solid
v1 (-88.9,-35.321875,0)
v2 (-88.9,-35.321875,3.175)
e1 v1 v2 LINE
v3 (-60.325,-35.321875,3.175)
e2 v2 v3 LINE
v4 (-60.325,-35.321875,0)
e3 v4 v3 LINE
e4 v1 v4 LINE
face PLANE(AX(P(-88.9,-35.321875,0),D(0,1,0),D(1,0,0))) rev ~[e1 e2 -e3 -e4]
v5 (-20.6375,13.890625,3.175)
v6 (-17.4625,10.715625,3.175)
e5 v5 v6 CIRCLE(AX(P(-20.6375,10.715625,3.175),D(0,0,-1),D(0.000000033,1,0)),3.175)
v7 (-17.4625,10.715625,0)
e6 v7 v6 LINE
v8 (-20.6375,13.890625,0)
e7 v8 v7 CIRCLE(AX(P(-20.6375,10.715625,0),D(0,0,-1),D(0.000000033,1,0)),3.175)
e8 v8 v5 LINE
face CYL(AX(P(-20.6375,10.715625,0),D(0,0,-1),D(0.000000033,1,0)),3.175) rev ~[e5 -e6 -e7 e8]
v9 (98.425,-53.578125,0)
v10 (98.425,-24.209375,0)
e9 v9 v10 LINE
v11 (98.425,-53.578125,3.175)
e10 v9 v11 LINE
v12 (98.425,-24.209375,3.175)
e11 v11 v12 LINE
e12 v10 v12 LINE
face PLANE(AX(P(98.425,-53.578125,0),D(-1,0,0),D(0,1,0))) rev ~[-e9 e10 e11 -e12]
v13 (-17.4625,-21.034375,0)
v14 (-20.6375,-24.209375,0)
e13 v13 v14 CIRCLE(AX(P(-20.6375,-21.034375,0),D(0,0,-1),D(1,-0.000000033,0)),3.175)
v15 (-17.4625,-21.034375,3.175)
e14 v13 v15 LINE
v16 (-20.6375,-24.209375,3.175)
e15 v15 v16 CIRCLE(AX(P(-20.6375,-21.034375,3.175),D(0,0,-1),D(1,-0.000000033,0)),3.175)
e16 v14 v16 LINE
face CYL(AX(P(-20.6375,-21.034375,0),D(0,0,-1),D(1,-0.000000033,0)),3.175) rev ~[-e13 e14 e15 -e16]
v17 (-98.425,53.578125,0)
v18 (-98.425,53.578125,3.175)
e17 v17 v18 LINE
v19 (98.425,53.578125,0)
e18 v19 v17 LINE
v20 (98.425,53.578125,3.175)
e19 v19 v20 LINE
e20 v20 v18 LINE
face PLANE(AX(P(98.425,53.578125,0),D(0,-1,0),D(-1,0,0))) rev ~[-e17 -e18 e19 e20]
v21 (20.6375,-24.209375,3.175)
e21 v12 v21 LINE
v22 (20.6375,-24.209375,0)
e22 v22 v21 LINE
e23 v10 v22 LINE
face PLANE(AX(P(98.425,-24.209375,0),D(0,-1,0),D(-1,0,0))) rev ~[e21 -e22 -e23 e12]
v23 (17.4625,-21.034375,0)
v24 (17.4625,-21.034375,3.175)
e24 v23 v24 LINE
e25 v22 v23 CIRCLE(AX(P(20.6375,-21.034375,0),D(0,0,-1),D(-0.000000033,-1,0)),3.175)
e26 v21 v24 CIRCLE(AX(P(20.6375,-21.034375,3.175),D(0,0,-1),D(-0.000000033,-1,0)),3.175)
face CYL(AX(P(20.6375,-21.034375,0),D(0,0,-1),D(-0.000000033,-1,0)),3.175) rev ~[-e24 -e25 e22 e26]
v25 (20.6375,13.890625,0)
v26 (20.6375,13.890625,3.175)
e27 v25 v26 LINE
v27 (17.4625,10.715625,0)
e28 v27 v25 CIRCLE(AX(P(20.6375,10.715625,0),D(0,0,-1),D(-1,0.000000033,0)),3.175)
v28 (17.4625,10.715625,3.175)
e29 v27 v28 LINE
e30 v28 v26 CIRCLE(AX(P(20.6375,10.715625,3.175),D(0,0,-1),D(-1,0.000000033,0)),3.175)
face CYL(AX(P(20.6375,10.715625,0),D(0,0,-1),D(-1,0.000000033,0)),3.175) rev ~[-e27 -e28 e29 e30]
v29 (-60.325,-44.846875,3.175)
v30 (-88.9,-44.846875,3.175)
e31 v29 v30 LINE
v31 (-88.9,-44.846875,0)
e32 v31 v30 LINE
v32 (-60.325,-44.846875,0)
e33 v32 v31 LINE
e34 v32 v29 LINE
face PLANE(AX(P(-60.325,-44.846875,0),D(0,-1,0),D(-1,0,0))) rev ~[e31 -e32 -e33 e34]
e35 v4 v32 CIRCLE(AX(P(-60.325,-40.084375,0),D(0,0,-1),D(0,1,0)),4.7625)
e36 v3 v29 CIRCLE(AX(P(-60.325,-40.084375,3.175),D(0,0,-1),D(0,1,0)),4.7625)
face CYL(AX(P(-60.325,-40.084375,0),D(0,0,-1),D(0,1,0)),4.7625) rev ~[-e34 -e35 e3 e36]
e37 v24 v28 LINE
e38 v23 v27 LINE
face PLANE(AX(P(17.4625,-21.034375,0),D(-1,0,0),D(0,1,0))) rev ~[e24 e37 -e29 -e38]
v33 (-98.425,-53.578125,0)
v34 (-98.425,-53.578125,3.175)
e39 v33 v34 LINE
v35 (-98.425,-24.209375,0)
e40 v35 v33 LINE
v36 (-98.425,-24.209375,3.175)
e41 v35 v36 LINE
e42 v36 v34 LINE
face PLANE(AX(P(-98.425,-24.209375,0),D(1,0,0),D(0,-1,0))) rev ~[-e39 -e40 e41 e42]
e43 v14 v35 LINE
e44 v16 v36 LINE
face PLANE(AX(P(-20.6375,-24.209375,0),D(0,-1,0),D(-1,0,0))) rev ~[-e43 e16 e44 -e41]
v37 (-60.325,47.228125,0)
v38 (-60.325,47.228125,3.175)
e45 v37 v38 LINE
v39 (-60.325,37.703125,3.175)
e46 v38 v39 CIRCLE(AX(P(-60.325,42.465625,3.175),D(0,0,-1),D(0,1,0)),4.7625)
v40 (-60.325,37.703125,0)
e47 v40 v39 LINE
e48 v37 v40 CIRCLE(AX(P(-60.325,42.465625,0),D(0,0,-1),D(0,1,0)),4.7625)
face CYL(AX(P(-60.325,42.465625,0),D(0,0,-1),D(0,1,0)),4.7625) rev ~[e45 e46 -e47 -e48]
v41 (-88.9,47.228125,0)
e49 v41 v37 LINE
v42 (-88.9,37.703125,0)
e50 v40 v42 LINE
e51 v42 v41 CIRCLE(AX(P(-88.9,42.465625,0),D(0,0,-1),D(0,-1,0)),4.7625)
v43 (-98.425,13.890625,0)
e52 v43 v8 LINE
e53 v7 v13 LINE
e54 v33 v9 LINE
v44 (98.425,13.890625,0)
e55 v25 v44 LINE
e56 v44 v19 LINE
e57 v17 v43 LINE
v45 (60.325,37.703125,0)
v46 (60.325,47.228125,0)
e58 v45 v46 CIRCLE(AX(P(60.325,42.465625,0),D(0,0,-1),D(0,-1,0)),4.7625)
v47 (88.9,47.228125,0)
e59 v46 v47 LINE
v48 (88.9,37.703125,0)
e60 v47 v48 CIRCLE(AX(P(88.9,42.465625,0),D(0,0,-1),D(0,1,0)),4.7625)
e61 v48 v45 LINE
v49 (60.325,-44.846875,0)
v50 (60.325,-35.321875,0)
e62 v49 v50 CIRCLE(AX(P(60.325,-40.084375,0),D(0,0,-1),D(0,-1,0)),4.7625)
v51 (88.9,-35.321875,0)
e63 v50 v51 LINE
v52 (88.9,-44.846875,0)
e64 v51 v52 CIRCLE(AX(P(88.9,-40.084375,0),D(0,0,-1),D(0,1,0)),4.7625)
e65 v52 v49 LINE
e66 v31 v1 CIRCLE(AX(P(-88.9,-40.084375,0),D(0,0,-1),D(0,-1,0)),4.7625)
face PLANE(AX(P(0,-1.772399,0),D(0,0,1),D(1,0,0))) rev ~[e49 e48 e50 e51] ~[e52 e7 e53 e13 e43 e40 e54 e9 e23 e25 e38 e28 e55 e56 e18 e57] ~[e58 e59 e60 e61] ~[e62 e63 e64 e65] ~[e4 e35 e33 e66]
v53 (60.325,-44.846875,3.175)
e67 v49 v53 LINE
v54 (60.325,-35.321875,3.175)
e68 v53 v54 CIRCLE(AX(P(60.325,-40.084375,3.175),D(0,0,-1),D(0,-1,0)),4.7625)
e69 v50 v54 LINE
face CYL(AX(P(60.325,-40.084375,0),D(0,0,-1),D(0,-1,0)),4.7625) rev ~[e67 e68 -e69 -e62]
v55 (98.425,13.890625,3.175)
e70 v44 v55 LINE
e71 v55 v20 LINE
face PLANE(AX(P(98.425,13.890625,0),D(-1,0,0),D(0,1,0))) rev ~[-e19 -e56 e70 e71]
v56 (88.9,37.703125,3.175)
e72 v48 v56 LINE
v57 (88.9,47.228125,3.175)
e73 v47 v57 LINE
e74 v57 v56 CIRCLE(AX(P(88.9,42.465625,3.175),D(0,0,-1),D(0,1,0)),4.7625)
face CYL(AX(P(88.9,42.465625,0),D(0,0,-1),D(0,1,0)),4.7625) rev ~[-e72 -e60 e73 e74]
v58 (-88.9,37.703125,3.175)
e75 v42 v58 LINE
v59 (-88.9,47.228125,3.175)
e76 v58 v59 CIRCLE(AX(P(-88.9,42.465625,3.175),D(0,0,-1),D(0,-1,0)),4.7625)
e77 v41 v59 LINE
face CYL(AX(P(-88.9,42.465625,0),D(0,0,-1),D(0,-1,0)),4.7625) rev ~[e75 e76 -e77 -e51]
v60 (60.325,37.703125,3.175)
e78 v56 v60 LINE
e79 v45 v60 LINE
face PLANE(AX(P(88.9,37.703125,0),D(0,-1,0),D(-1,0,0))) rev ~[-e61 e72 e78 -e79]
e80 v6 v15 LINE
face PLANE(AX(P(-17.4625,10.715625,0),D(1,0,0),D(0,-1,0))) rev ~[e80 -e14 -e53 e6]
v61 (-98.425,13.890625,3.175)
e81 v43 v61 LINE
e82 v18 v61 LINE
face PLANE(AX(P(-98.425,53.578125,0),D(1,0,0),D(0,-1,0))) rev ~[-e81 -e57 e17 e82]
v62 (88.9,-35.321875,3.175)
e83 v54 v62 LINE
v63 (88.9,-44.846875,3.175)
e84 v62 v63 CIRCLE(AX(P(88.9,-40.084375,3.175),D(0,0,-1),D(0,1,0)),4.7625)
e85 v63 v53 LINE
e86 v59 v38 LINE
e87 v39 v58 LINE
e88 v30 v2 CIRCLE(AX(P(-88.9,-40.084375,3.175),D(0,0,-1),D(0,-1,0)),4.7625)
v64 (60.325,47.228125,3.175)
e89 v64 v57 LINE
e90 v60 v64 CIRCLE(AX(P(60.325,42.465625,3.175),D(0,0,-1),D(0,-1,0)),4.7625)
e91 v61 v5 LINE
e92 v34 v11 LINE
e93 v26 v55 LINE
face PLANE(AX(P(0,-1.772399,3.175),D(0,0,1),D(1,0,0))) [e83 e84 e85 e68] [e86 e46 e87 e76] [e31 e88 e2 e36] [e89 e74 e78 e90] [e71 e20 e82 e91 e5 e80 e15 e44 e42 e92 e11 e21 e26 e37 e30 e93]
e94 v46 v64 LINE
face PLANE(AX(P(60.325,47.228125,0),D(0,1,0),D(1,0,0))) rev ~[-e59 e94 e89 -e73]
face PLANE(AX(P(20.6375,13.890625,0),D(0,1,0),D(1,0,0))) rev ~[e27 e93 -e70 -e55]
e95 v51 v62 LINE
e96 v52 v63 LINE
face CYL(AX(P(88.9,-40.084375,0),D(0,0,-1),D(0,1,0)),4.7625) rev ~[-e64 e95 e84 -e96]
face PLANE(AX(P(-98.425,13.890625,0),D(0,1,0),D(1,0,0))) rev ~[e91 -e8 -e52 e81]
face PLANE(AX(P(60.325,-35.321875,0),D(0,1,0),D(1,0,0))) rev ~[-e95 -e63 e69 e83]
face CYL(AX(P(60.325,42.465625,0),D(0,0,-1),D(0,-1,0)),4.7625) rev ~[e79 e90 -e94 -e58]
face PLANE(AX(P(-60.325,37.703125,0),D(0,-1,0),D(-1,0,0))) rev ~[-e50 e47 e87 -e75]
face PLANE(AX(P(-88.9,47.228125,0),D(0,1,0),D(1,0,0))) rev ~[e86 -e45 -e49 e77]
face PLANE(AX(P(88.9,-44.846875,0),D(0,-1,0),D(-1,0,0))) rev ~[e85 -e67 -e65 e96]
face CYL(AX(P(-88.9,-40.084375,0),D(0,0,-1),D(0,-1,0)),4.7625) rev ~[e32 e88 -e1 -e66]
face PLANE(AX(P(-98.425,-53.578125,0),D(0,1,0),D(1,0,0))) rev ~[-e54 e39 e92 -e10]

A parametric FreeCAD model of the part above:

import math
import FreeCAD as App
import Part
import Sketcher
Q = App.Units.Quantity

doc = App.newDocument("Part")
body = doc.addObject("PartDesign::Body", "Body")

sketch1 = body.newObject("Sketcher::SketchObject", "Sketch")
sketch1.AttachmentSupport = (doc.getObject("XY_Plane"), [""])
sketch1.MapMode = "FlatFace"
sketch1.addGeometry(Part.LineSegment(App.Vector(-98.425, -24.209375, 0), App.Vector(-98.425, -53.578125, 0)), False)
sketch1.addGeometry(Part.LineSegment(App.Vector(-98.425, -53.578125, 0), App.Vector(98.425, -53.578125, 0)), False)
sketch1.addGeometry(Part.LineSegment(App.Vector(98.425, -53.578125, 0), App.Vector(98.425, -24.209375, 0)), False)
sketch1.addGeometry(Part.LineSegment(App.Vector(98.425, -24.209375, 0), App.Vector(20.6375, -24.209375, 0)), False)
sketch1.addGeometry(Part.ArcOfCircle(Part.Circle(App.Vector(20.6375, -21.034375, 0), App.Vector(0, 0, 1), 3.175), math.radians(-179.999998), math.radians(-90.000002)), False)
sketch1.addGeometry(Part.LineSegment(App.Vector(17.4625, -21.034375, 0), App.Vector(17.4625, 10.715625, 0)), False)
sketch1.addGeometry(Part.ArcOfCircle(Part.Circle(App.Vector(20.6375, 10.715625, 0), App.Vector(0, 0, 1), 3.175), math.radians(90.000002), math.radians(179.999998)), False)
sketch1.addGeometry(Part.LineSegment(App.Vector(20.6375, 13.890625, 0), App.Vector(98.425, 13.890625, 0)), False)
sketch1.addGeometry(Part.LineSegment(App.Vector(98.425, 13.890625, 0), App.Vector(98.425, 53.578125, 0)), False)
sketch1.addGeometry(Part.LineSegment(App.Vector(98.425, 53.578125, 0), App.Vector(-98.425, 53.578125, 0)), False)
sketch1.addGeometry(Part.LineSegment(App.Vector(-98.425, 53.578125, 0), App.Vector(-98.425, 13.890625, 0)), False)
sketch1.addGeometry(Part.LineSegment(App.Vector(-98.425, 13.890625, 0), App.Vector(-20.6375, 13.890625, 0)), False)
sketch1.addGeometry(Part.ArcOfCircle(Part.Circle(App.Vector(-20.6375, 10.715625, 0), App.Vector(0, 0, 1), 3.175), math.radians(0.000002), math.radians(89.999998)), False)
sketch1.addGeometry(Part.LineSegment(App.Vector(-17.4625, 10.715625, 0), App.Vector(-17.4625, -21.034375, 0)), False)
sketch1.addGeometry(Part.ArcOfCircle(Part.Circle(App.Vector(-20.6375, -21.034375, 0), App.Vector(0, 0, 1), 3.175), math.radians(-89.999998), math.radians(-0.000002)), False)
sketch1.addGeometry(Part.LineSegment(App.Vector(-20.6375, -24.209375, 0), App.Vector(-98.425, -24.209375, 0)), False)
sketch1.addGeometry(Part.ArcOfCircle(Part.Circle(App.Vector(-60.325, -40.084375, 0), App.Vector(0, 0, 1), 4.7625), math.radians(-90), math.radians(90)), False)
sketch1.addGeometry(Part.LineSegment(App.Vector(-60.325, -44.846875, 0), App.Vector(-88.9, -44.846875, 0)), False)
sketch1.addGeometry(Part.ArcOfCircle(Part.Circle(App.Vector(-88.9, -40.084375, 0), App.Vector(0, 0, 1), 4.7625), math.radians(90), math.radians(270)), False)
sketch1.addGeometry(Part.LineSegment(App.Vector(-88.9, -35.321875, 0), App.Vector(-60.325, -35.321875, 0)), False)
sketch1.addGeometry(Part.LineSegment(App.Vector(60.325, -35.321875, 0), App.Vector(88.9, -35.321875, 0)), False)
sketch1.addGeometry(Part.ArcOfCircle(Part.Circle(App.Vector(88.9, -40.084375, 0), App.Vector(0, 0, 1), 4.7625), math.radians(-90), math.radians(90)), False)
sketch1.addGeometry(Part.LineSegment(App.Vector(88.9, -44.846875, 0), App.Vector(60.325, -44.846875, 0)), False)
sketch1.addGeometry(Part.ArcOfCircle(Part.Circle(App.Vector(60.325, -40.084375, 0), App.Vector(0, 0, 1), 4.7625), math.radians(90), math.radians(270)), False)
sketch1.addGeometry(Part.ArcOfCircle(Part.Circle(App.Vector(-60.325, 42.465625, 0), App.Vector(0, 0, 1), 4.7625), math.radians(-90), math.radians(90)), False)
sketch1.addGeometry(Part.LineSegment(App.Vector(-60.325, 37.703125, 0), App.Vector(-88.9, 37.703125, 0)), False)
sketch1.addGeometry(Part.ArcOfCircle(Part.Circle(App.Vector(-88.9, 42.465625, 0), App.Vector(0, 0, 1), 4.7625), math.radians(90), math.radians(270)), False)
sketch1.addGeometry(Part.LineSegment(App.Vector(-88.9, 47.228125, 0), App.Vector(-60.325, 47.228125, 0)), False)
sketch1.addGeometry(Part.LineSegment(App.Vector(60.325, 47.228125, 0), App.Vector(88.9, 47.228125, 0)), False)
sketch1.addGeometry(Part.ArcOfCircle(Part.Circle(App.Vector(88.9, 42.465625, 0), App.Vector(0, 0, 1), 4.7625), math.radians(-90), math.radians(90)), False)
sketch1.addGeometry(Part.LineSegment(App.Vector(88.9, 37.703125, 0), App.Vector(60.325, 37.703125, 0)), False)
sketch1.addGeometry(Part.ArcOfCircle(Part.Circle(App.Vector(60.325, 42.465625, 0), App.Vector(0, 0, 1), 4.7625), math.radians(90), math.radians(270)), False)
sketch1.addConstraint(Sketcher.Constraint("Coincident", 0, 2, 1, 1))
sketch1.addConstraint(Sketcher.Constraint("Coincident", 1, 2, 2, 1))
sketch1.addConstraint(Sketcher.Constraint("Coincident", 2, 2, 3, 1))
sketch1.addConstraint(Sketcher.Constraint("Tangent", 3, 2, 4, 2))
sketch1.addConstraint(Sketcher.Constraint("Tangent", 4, 1, 5, 1))
sketch1.addConstraint(Sketcher.Constraint("Tangent", 5, 2, 6, 2))
sketch1.addConstraint(Sketcher.Constraint("Tangent", 6, 1, 7, 1))
sketch1.addConstraint(Sketcher.Constraint("Coincident", 7, 2, 8, 1))
sketch1.addConstraint(Sketcher.Constraint("Coincident", 8, 2, 9, 1))
sketch1.addConstraint(Sketcher.Constraint("Coincident", 9, 2, 10, 1))
sketch1.addConstraint(Sketcher.Constraint("Coincident", 10, 2, 11, 1))
sketch1.addConstraint(Sketcher.Constraint("Tangent", 11, 2, 12, 2))
sketch1.addConstraint(Sketcher.Constraint("Tangent", 12, 1, 13, 1))
sketch1.addConstraint(Sketcher.Constraint("Tangent", 13, 2, 14, 2))
sketch1.addConstraint(Sketcher.Constraint("Tangent", 14, 1, 15, 1))
sketch1.addConstraint(Sketcher.Constraint("Coincident", 15, 2, 0, 1))
sketch1.addConstraint(Sketcher.Constraint("Tangent", 16, 1, 17, 1))
sketch1.addConstraint(Sketcher.Constraint("Tangent", 17, 2, 18, 2))
sketch1.addConstraint(Sketcher.Constraint("Tangent", 18, 1, 19, 1))
sketch1.addConstraint(Sketcher.Constraint("Tangent", 19, 2, 16, 2))
sketch1.addConstraint(Sketcher.Constraint("Tangent", 20, 2, 21, 2))
sketch1.addConstraint(Sketcher.Constraint("Tangent", 21, 1, 22, 1))
sketch1.addConstraint(Sketcher.Constraint("Tangent", 22, 2, 23, 2))
sketch1.addConstraint(Sketcher.Constraint("Tangent", 23, 1, 20, 1))
sketch1.addConstraint(Sketcher.Constraint("Tangent", 24, 1, 25, 1))
sketch1.addConstraint(Sketcher.Constraint("Tangent", 25, 2, 26, 2))
sketch1.addConstraint(Sketcher.Constraint("Tangent", 26, 1, 27, 1))
sketch1.addConstraint(Sketcher.Constraint("Tangent", 27, 2, 24, 2))
sketch1.addConstraint(Sketcher.Constraint("Tangent", 28, 2, 29, 2))
sketch1.addConstraint(Sketcher.Constraint("Tangent", 29, 1, 30, 1))
sketch1.addConstraint(Sketcher.Constraint("Tangent", 30, 2, 31, 2))
sketch1.addConstraint(Sketcher.Constraint("Tangent", 31, 1, 28, 1))
sketch1.addConstraint(Sketcher.Constraint("Vertical", 0))
sketch1.addConstraint(Sketcher.Constraint("Horizontal", 1))
sketch1.addConstraint(Sketcher.Constraint("Vertical", 2))
sketch1.addConstraint(Sketcher.Constraint("Horizontal", 3))
sketch1.addConstraint(Sketcher.Constraint("Vertical", 5))
sketch1.addConstraint(Sketcher.Constraint("Horizontal", 7))
sketch1.addConstraint(Sketcher.Constraint("Vertical", 8))
sketch1.addConstraint(Sketcher.Constraint("Horizontal", 9))
sketch1.addConstraint(Sketcher.Constraint("Vertical", 10))
sketch1.addConstraint(Sketcher.Constraint("Horizontal", 11))
sketch1.addConstraint(Sketcher.Constraint("Vertical", 13))
sketch1.addConstraint(Sketcher.Constraint("Horizontal", 15))
sketch1.addConstraint(Sketcher.Constraint("Horizontal", 17))
sketch1.addConstraint(Sketcher.Constraint("Horizontal", 19))
sketch1.addConstraint(Sketcher.Constraint("Horizontal", 20))
sketch1.addConstraint(Sketcher.Constraint("Horizontal", 22))
sketch1.addConstraint(Sketcher.Constraint("Horizontal", 25))
sketch1.addConstraint(Sketcher.Constraint("Horizontal", 27))
sketch1.addConstraint(Sketcher.Constraint("Horizontal", 28))
sketch1.addConstraint(Sketcher.Constraint("Horizontal", 30))
sketch1.addConstraint(Sketcher.Constraint("Equal", 4, 6))
sketch1.addConstraint(Sketcher.Constraint("Equal", 6, 12))
sketch1.addConstraint(Sketcher.Constraint("Equal", 12, 14))
sketch1.addConstraint(Sketcher.Constraint("Equal", 18, 21))
sketch1.addConstraint(Sketcher.Constraint("Equal", 23, 24))
sketch1.addConstraint(Sketcher.Constraint("Equal", 26, 29))
sketch1.addConstraint(Sketcher.Constraint("Symmetric", 0, 2, 8, 2, -1, 1))
sketch1.addConstraint(Sketcher.Constraint("Symmetric", 6, 3, 12, 3, -2))
sketch1.addConstraint(Sketcher.Constraint("Symmetric", 18, 3, 21, 3, -2))
sketch1.addConstraint(Sketcher.Constraint("Symmetric", 26, 3, 29, 3, -2))
sketch1.addConstraint(Sketcher.Constraint("Symmetric", 2, 2, 15, 2, -2))
sketch1.addConstraint(Sketcher.Constraint("Vertical", 16, 3, 24, 3))
sketch1.addConstraint(Sketcher.Constraint("Vertical", 18, 3, 26, 3))
sketch1.addConstraint(Sketcher.Constraint("Vertical", 23, 3, 31, 3))
sketch1.addConstraint(Sketcher.Constraint("Vertical", 0, 2, 9, 2))
sketch1.addConstraint(Sketcher.Constraint("Equal", 19, 20))
sketch1.addConstraint(Sketcher.Constraint("Radius", 4, Q("0.125 in")))
sketch1.addConstraint(Sketcher.Constraint("Radius", 16, Q("0.1875 in")))
sketch1.addConstraint(Sketcher.Constraint("DistanceY", 16, 3, 12, 3, Q("2 in")))
sketch1.addConstraint(Sketcher.Constraint("DistanceX", 1, 1, 1, 2, Q("7.75 in")))
sketch1.addConstraint(Sketcher.Constraint("DistanceY", 5, 1, 5, 2, Q("1.25 in")))
sketch1.addConstraint(Sketcher.Constraint("DistanceX", 18, 3, -1, 1, Q("3.5 in")))
sketch1.addConstraint(Sketcher.Constraint("DistanceY", 14, 3, 24, 3, Q("2.5 in")))
sketch1.addConstraint(Sketcher.Constraint("DistanceX", 0, 2, 16, 3, Q("1.5 in")))
sketch1.addConstraint(Sketcher.Constraint("DistanceX", 14, 3, 4, 1, Q("1.5 in")))
sketch1.addConstraint(Sketcher.Constraint("DistanceY", 0, 2, 0, 1, Q("1.15625 in")))
sketch1.addConstraint(Sketcher.Constraint("DistanceY", 8, 1, 8, 2, Q("1.5625 in")))
pad1 = body.newObject("PartDesign::Pad", "Pad")
pad1.Profile = sketch1
pad1.Length = Q("0.125 in")

doc.recompute()
